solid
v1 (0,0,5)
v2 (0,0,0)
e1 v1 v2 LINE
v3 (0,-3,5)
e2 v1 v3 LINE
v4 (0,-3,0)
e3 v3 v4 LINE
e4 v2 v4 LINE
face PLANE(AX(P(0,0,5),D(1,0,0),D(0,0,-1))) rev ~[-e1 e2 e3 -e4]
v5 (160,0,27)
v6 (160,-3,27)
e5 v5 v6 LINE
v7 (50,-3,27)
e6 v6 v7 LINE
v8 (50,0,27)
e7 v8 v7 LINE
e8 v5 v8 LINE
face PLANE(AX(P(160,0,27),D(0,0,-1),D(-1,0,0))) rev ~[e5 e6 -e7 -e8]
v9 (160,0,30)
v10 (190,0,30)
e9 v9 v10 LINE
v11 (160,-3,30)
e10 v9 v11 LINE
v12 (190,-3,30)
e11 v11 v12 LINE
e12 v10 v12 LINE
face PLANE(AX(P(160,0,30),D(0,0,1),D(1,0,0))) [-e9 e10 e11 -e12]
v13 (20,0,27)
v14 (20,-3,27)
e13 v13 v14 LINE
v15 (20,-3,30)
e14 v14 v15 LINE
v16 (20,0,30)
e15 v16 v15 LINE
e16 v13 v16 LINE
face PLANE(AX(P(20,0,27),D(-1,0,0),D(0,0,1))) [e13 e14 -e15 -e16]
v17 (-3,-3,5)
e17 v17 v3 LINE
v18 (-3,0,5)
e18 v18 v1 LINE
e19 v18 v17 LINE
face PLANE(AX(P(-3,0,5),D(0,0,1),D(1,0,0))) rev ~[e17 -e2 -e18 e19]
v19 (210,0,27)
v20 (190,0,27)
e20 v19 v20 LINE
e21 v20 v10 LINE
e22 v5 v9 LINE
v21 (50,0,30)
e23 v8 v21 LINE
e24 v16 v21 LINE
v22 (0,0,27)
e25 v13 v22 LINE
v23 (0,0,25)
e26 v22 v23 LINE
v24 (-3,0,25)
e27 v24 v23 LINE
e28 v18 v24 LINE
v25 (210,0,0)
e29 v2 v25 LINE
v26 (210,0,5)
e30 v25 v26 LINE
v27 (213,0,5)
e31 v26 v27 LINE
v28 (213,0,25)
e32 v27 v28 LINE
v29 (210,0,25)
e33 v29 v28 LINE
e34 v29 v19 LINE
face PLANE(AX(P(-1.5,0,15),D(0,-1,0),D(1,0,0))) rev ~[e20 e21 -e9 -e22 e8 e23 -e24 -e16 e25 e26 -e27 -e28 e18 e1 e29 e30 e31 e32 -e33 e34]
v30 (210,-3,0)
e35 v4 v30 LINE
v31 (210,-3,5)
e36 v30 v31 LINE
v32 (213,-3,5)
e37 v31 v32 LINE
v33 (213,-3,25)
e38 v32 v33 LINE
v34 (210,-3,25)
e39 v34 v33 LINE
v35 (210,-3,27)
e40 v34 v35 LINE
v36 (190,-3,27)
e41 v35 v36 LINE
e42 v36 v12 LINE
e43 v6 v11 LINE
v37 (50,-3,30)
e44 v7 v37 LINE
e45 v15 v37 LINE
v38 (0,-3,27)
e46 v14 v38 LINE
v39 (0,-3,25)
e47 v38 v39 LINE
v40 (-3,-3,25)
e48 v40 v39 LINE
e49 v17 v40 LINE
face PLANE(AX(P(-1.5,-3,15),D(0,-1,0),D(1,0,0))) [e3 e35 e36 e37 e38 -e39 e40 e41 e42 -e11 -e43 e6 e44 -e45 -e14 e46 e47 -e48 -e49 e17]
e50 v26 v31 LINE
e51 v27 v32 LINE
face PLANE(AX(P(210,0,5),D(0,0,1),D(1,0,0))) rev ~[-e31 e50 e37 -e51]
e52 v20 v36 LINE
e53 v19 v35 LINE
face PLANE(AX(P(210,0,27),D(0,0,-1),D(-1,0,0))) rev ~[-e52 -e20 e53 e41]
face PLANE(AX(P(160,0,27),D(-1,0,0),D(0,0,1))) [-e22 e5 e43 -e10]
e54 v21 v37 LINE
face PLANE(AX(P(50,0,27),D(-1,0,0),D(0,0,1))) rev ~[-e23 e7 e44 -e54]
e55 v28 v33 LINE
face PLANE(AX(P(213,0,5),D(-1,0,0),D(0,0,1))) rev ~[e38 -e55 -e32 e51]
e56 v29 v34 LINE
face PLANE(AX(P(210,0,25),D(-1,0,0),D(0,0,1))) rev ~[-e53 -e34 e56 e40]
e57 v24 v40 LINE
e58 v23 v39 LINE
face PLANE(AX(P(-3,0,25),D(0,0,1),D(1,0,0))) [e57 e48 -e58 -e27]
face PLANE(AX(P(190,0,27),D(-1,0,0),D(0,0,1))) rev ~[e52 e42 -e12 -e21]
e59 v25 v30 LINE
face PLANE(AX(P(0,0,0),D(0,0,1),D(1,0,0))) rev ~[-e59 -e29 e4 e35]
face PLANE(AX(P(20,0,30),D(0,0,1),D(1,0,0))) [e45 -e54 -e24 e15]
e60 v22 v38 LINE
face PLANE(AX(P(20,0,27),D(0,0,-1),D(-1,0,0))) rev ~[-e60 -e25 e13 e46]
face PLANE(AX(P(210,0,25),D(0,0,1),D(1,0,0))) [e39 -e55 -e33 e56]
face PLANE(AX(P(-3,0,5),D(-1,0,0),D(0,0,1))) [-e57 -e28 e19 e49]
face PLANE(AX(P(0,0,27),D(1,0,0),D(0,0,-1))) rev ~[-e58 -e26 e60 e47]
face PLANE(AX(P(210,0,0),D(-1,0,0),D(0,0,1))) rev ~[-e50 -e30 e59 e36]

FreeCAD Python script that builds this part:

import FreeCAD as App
import Part
import Sketcher


def add_polygon(sketch, points):
    """Adds a closed chain of lines whose ends are joined by coincident constraints."""
    first, n = sketch.GeometryCount, len(points)
    for a, b in zip(points, points[1:] + points[:1]):
        sketch.addGeometry(Part.LineSegment(App.Vector(*a, 0), App.Vector(*b, 0)), False)
    for i in range(n):
        sketch.addConstraint(Sketcher.Constraint("Coincident", first + i, 2, first + (i + 1) % n, 1))

doc = App.newDocument("Part")
body = doc.addObject("PartDesign::Body", "Body")

sketch1 = doc.addObject("Sketcher::SketchObject", "Sketch")
body.addObject(sketch1)
sketch1.AttachmentSupport = (doc.XZ_Plane, [""])
sketch1.MapMode = "FlatFace"
add_polygon(sketch1, [(-3, 25), (-3, 5), (0, 5), (0, 0), (210, 0), (210, 5), (213, 5), (213, 25), (210, 25), (210, 27), (190, 27), (190, 30), (160, 30), (160, 27), (50, 27), (50, 30), (20, 30), (20, 27), (0, 27), (0, 25)])
sketch1.addConstraint(Sketcher.Constraint("Vertical", 0))
sketch1.addConstraint(Sketcher.Constraint("Horizontal", 1))
sketch1.addConstraint(Sketcher.Constraint("Vertical", 2))
sketch1.addConstraint(Sketcher.Constraint("Horizontal", 3))
sketch1.addConstraint(Sketcher.Constraint("Vertical", 4))
sketch1.addConstraint(Sketcher.Constraint("Horizontal", 5))
sketch1.addConstraint(Sketcher.Constraint("Vertical", 6))
sketch1.addConstraint(Sketcher.Constraint("Horizontal", 7))
sketch1.addConstraint(Sketcher.Constraint("Vertical", 8))
sketch1.addConstraint(Sketcher.Constraint("Horizontal", 9))
sketch1.addConstraint(Sketcher.Constraint("Vertical", 10))
sketch1.addConstraint(Sketcher.Constraint("Horizontal", 11))
sketch1.addConstraint(Sketcher.Constraint("Vertical", 12))
sketch1.addConstraint(Sketcher.Constraint("Horizontal", 13))
sketch1.addConstraint(Sketcher.Constraint("Vertical", 14))
sketch1.addConstraint(Sketcher.Constraint("Horizontal", 15))
sketch1.addConstraint(Sketcher.Constraint("Vertical", 16))
sketch1.addConstraint(Sketcher.Constraint("Horizontal", 17))
sketch1.addConstraint(Sketcher.Constraint("Vertical", 18))
sketch1.addConstraint(Sketcher.Constraint("Horizontal", 19))
sketch1.addConstraint(Sketcher.Constraint("Coincident", 2, 2, -1, 1))
sketch1.addConstraint(Sketcher.Constraint("PointOnObject", 17, 2, -2))
sketch1.addConstraint(Sketcher.Constraint("Horizontal", 1, 2, 4, 2))
sketch1.addConstraint(Sketcher.Constraint("Horizontal", 9, 2, 12, 2))
sketch1.addConstraint(Sketcher.Constraint("Horizontal", 11, 2, 14, 2))
sketch1.addConstraint(Sketcher.Constraint("Horizontal", 13, 2, 16, 2))
sketch1.addConstraint(Sketcher.Constraint("Horizontal", 7, 2, 18, 2))
sketch1.addConstraint(Sketcher.Constraint("Vertical", 4, 2, 7, 2))
sketch1.addConstraint(Sketcher.Constraint("Equal", 1, 5))
sketch1.addConstraint(Sketcher.Constraint("Equal", 11, 15))
sketch1.addConstraint(Sketcher.Constraint("Equal", 9, 17))
sketch1.addConstraint(Sketcher.Constraint("Equal", 17, 0))
sketch1.addConstraint(Sketcher.Constraint("Equal", 19, 10))
sketch1.addConstraint(Sketcher.Constraint("DistanceX", 1, 1, 1, 2, 3.0))
sketch1.addConstraint(Sketcher.Constraint("DistanceX", 3, 1, 3, 2, 210.0))
sketch1.addConstraint(Sketcher.Constraint("DistanceX", 9, 2, 9, 1, 20.0))
sketch1.addConstraint(Sketcher.Constraint("DistanceX", 11, 2, 11, 1, 30.0))
sketch1.addConstraint(Sketcher.Constraint("DistanceY", 2, 2, 2, 1, 5.0))
sketch1.addConstraint(Sketcher.Constraint("DistanceY", 8, 1, 8, 2, 2.0))
pad1 = doc.addObject("PartDesign::Pad", "Pad")
body.addObject(pad1)
pad1.Profile = sketch1
pad1.Length = 3

doc.recompute()
